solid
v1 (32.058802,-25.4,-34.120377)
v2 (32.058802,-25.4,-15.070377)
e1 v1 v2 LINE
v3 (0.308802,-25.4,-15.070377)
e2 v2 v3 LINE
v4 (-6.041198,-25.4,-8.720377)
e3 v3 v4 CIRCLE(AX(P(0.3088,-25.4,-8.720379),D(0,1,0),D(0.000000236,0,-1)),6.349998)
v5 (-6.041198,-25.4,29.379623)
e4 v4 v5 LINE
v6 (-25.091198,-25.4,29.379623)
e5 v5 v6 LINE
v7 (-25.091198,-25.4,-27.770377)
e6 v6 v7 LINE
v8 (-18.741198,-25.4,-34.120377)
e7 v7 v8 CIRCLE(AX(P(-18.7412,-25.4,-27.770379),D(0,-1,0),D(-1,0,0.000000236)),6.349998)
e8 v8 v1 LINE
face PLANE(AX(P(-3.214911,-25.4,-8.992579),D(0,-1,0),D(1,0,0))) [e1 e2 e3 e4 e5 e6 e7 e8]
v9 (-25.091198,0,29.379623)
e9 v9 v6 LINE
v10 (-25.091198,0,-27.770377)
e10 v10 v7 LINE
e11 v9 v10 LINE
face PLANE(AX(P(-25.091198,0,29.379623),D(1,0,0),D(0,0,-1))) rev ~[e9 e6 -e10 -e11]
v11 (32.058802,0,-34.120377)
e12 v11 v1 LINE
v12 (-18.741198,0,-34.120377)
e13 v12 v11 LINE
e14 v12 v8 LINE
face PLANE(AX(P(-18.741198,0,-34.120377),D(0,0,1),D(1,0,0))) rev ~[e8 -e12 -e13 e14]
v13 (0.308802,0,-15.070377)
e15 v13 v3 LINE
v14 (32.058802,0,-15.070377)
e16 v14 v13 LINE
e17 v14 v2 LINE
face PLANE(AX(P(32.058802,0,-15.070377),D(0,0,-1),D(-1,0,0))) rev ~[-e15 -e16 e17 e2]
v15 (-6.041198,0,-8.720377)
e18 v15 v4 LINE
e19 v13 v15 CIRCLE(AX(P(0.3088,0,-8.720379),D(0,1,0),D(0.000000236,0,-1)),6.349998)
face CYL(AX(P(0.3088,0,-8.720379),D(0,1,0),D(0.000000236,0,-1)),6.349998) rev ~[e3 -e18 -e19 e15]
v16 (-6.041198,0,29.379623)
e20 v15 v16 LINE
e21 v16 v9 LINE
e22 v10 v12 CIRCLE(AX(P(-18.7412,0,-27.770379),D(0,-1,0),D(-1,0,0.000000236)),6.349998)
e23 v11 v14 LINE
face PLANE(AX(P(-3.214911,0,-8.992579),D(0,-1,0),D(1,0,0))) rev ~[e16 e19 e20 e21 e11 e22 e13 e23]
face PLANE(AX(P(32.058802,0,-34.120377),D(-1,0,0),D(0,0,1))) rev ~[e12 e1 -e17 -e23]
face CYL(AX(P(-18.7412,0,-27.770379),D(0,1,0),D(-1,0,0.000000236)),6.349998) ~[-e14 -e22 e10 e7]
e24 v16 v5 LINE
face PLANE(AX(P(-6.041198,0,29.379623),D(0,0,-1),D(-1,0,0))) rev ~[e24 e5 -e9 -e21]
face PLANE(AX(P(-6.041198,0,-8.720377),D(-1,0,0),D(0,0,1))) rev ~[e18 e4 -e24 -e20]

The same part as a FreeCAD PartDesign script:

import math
import FreeCAD as App
import Part
import Sketcher

V = App.Vector
Q = App.Units.Quantity

doc = App.newDocument("Part")
body = doc.addObject("PartDesign::Body", "Body")

sketch1 = body.newObject("Sketcher::SketchObject", "Sketch")
sketch1.AttachmentSupport = (doc.getObject("XZ_Plane"), [""])
sketch1.MapMode = "FlatFace"
sketch1.addGeometry([
    Part.LineSegment(V(-6, 29, 0), V(-25, 29, 0)),
    Part.LineSegment(V(-25, 29, 0), V(-25, -28, 0)),
    Part.ArcOfCircle(Part.Circle(V(-19, -28, 0), V(0, 0, 1), 6), math.radians(180), math.radians(270)),
    Part.LineSegment(V(-19, -34, 0), V(32, -34, 0)),
    Part.LineSegment(V(32, -34, 0), V(32, -15, 0)),
    Part.LineSegment(V(32, -15, 0), V(0, -15, 0)),
    Part.ArcOfCircle(Part.Circle(V(0, -9, 0), V(0, 0, 1), 6), math.radians(180), math.radians(270)),
    Part.LineSegment(V(-6, -9, 0), V(-6, 29, 0)),
], False)
sketch1.addConstraint([
    Sketcher.Constraint("Coincident", 0, 2, 1, 1),
    Sketcher.Constraint("Tangent", 1, 2, 2, 1),
    Sketcher.Constraint("Tangent", 2, 2, 3, 1),
    Sketcher.Constraint("Coincident", 3, 2, 4, 1),
    Sketcher.Constraint("Coincident", 4, 2, 5, 1),
    Sketcher.Constraint("Tangent", 5, 2, 6, 2),
    Sketcher.Constraint("Tangent", 6, 1, 7, 1),
    Sketcher.Constraint("Coincident", 7, 2, 0, 1),
    Sketcher.Constraint("Horizontal", 0),
    Sketcher.Constraint("Vertical", 1),
    Sketcher.Constraint("Horizontal", 3),
    Sketcher.Constraint("Vertical", 4),
    Sketcher.Constraint("Horizontal", 5),
    Sketcher.Constraint("Vertical", 7),
    Sketcher.Constraint("Equal", 2, 6),
    Sketcher.Constraint("Equal", 0, 4),
    Sketcher.Constraint("DistanceX", 3, 1, 3, 2, Q("2 in")),
    Sketcher.Constraint("Radius", 2, Q("0.2499999 in")),
    Sketcher.Constraint("DistanceY", 7, 1, 7, 2, Q("1.5 in")),
    Sketcher.Constraint("DistanceX", 0, 2, 6, 3, Q("0.9999999 in")),
    Sketcher.Constraint("DistanceX", 2, 3, -1, 1, 18.7412),
    Sketcher.Constraint("DistanceY", 2, 3, -1, 1, 27.770378),
])
pad1 = body.newObject("PartDesign::Pad", "Pad")
pad1.Profile = sketch1
pad1.Length = Q("1 in")

doc.recompute()
